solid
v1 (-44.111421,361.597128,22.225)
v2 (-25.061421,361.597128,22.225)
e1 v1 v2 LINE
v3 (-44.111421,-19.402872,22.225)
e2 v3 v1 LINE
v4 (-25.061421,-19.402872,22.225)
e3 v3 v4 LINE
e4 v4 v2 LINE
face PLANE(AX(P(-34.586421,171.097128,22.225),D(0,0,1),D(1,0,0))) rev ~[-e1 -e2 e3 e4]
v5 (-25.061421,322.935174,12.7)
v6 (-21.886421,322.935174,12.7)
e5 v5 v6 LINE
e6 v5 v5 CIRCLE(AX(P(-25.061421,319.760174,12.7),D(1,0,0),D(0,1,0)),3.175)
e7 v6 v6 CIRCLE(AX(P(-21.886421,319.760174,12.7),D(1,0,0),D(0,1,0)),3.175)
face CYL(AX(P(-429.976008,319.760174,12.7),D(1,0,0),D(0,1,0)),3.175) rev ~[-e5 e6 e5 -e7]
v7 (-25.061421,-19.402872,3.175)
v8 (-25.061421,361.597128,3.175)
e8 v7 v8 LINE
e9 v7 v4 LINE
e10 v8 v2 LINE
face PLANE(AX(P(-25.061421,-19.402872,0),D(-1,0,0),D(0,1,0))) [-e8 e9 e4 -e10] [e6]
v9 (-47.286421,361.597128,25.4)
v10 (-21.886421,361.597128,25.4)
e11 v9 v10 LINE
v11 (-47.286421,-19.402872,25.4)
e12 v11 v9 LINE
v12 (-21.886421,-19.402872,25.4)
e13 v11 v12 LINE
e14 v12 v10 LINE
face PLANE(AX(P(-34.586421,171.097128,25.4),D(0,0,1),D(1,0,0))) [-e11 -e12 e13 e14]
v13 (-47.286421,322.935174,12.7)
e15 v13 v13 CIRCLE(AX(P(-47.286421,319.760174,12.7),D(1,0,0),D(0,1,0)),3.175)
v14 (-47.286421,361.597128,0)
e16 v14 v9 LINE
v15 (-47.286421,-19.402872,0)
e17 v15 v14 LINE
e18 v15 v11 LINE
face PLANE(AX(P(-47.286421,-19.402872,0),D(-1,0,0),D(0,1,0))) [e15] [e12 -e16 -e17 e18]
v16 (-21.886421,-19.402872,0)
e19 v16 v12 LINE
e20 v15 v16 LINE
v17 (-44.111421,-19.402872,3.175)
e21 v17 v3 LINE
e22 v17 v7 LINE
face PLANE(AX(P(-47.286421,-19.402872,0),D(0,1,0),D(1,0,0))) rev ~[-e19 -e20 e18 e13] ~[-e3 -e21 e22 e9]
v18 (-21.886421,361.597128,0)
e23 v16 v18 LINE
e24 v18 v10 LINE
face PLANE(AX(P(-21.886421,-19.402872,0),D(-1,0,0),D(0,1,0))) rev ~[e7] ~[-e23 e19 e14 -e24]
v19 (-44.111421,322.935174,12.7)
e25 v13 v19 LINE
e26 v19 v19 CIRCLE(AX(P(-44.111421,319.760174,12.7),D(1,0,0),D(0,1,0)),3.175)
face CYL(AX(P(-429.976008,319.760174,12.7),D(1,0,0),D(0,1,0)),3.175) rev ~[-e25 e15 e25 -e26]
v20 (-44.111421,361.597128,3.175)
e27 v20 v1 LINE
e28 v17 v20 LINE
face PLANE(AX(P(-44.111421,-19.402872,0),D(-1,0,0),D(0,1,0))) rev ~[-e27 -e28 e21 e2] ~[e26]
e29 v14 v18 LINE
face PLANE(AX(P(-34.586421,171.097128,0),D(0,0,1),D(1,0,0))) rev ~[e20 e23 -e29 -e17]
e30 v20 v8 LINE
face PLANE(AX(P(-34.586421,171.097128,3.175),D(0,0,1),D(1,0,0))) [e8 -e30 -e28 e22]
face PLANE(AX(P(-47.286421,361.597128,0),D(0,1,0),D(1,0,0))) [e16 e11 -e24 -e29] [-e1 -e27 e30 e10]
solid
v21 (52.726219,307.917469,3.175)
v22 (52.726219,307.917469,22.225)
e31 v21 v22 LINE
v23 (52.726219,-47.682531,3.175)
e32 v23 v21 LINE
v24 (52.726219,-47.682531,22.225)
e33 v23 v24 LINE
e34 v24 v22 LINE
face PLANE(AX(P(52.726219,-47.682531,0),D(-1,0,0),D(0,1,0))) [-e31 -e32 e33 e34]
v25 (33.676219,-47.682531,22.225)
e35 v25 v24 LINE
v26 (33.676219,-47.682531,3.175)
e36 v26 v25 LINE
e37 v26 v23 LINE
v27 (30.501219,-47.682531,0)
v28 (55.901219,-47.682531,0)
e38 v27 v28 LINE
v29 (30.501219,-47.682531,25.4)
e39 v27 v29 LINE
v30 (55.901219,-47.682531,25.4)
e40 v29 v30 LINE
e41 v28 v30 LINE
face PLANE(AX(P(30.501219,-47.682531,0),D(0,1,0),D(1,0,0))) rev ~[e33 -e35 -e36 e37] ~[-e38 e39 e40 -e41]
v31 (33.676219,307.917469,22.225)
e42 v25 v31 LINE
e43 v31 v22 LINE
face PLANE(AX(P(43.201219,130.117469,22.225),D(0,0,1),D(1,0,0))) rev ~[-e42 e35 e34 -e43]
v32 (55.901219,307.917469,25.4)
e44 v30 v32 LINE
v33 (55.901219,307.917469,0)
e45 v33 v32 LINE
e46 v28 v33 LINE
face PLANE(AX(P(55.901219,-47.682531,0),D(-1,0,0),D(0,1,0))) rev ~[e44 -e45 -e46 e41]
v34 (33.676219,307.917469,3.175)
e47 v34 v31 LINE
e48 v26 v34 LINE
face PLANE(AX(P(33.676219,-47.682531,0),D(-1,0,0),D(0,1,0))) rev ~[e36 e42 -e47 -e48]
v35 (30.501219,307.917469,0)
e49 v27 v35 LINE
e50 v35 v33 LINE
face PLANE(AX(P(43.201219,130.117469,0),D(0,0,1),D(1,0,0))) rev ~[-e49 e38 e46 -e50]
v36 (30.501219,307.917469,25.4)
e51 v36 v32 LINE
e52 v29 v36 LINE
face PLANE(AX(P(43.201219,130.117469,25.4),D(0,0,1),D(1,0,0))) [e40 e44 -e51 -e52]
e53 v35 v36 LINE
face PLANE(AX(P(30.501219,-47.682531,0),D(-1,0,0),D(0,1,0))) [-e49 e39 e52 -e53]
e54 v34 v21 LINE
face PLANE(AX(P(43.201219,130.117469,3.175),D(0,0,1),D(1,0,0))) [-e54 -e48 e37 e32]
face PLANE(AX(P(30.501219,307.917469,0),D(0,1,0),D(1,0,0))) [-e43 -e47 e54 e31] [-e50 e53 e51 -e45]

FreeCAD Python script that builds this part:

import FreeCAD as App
import Part
import Sketcher
Q = App.Units.Quantity


def faces_at(feature, points):
    """Names of the faces that lie closest to the given points."""
    faces = feature.Shape.Faces
    near = lambda p: min(range(len(faces)), key=lambda i: faces[i].distToShape(Part.Vertex(*p))[0])
    return sorted({f"Face{near(p) + 1}" for p in points})

doc = App.newDocument("Part")
body = doc.addObject("PartDesign::Body", "Body")

sketch1 = body.newObject("Sketcher::SketchObject", "Sketch")
sketch1.AttachmentSupport = (doc.getObject("XY_Plane"), [""])
sketch1.MapMode = "FlatFace"
sketch1.addGeometry([
    Part.LineSegment(App.Vector(-47, 362, 0), App.Vector(-47, -19, 0)),
    Part.LineSegment(App.Vector(-47, -19, 0), App.Vector(-22, -19, 0)),
    Part.LineSegment(App.Vector(-22, -19, 0), App.Vector(-22, 362, 0)),
    Part.LineSegment(App.Vector(-22, 362, 0), App.Vector(-47, 362, 0)),
], False)
sketch1.addConstraint([
    Sketcher.Constraint("Coincident", 0, 2, 1, 1),
    Sketcher.Constraint("Coincident", 1, 2, 2, 1),
    Sketcher.Constraint("Coincident", 2, 2, 3, 1),
    Sketcher.Constraint("Coincident", 3, 2, 0, 1),
    Sketcher.Constraint("Vertical", 0),
    Sketcher.Constraint("Horizontal", 1),
    Sketcher.Constraint("Vertical", 2),
    Sketcher.Constraint("Horizontal", 3),
    Sketcher.Constraint("DistanceX", 1, 1, 1, 2, Q("1 in")),
    Sketcher.Constraint("DistanceY", 0, 2, 0, 1, Q("15 in")),
    Sketcher.Constraint("DistanceX", 0, 2, -1, 1, Q("47.286421 mm")),
    Sketcher.Constraint("DistanceY", 0, 2, -1, 1, Q("19.402872 mm")),
])
pad1 = body.newObject("PartDesign::Pad", "Pad")
pad1.Profile = sketch1
pad1.Length = Q("1 in")
doc.recompute()

thickness = body.newObject("PartDesign::Thickness", "Thickness")
thickness.Base = (pad1, faces_at(pad1, [(-34.586, -19.403, 12.7), (-34.586, 361.597, 12.7)]))
thickness.Value = Q("0.125 in")
thickness.Reversed = True
thickness.Join = "Arc"

sketch2 = body.newObject("Sketcher::SketchObject", "Sketch001")
sketch2.AttachmentSupport = (doc.getObject("YZ_Plane"), [""])
sketch2.MapMode = "FlatFace"
sketch2.AttachmentOffset = App.Placement(App.Vector(0, 0, -47.286421), App.Rotation())
sketch2.addGeometry(Part.Circle(App.Vector(319.8, 12.7, 0), App.Vector(0, 0, 1), 3.2), False)
sketch2.addConstraint([
    Sketcher.Constraint("Diameter", 0, Q("0.25 in")),
    Sketcher.Constraint("DistanceY", -1, 1, 0, 3, Q("0.5 in")),
    Sketcher.Constraint("DistanceX", -1, 1, 0, 3, Q("319.760174 mm")),
])
doc.recompute()
hole = body.newObject("PartDesign::Hole", "Hole")
hole.Profile = sketch2
hole.ThreadType = "None"
hole.Diameter = Q("0.25 in")
hole.DepthType = "ThroughAll"
hole.Reversed = True
body2 = doc.addObject("PartDesign::Body", "Body001")

sketch3 = body2.newObject("Sketcher::SketchObject", "Sketch002")
sketch3.AttachmentSupport = (doc.getObject("XY_Plane001"), [""])
sketch3.MapMode = "FlatFace"
sketch3.addGeometry([
    Part.LineSegment(App.Vector(31, 308, 0), App.Vector(31, -48, 0)),
    Part.LineSegment(App.Vector(31, -48, 0), App.Vector(56, -48, 0)),
    Part.LineSegment(App.Vector(56, -48, 0), App.Vector(56, 308, 0)),
    Part.LineSegment(App.Vector(56, 308, 0), App.Vector(31, 308, 0)),
], False)
sketch3.addConstraint([
    Sketcher.Constraint("Coincident", 0, 2, 1, 1),
    Sketcher.Constraint("Coincident", 1, 2, 2, 1),
    Sketcher.Constraint("Coincident", 2, 2, 3, 1),
    Sketcher.Constraint("Coincident", 3, 2, 0, 1),
    Sketcher.Constraint("Vertical", 0),
    Sketcher.Constraint("Horizontal", 1),
    Sketcher.Constraint("Vertical", 2),
    Sketcher.Constraint("Horizontal", 3),
    Sketcher.Constraint("DistanceX", 1, 1, 1, 2, Q("1 in")),
    Sketcher.Constraint("DistanceY", 0, 2, 0, 1, Q("14 in")),
    Sketcher.Constraint("DistanceX", -1, 1, 0, 2, Q("30.501219 mm")),
    Sketcher.Constraint("DistanceY", 0, 2, -1, 1, Q("47.682531 mm")),
])
pad2 = body2.newObject("PartDesign::Pad", "Pad001")
pad2.Profile = sketch3
pad2.Length = Q("1 in")
doc.recompute()

thickness2 = body2.newObject("PartDesign::Thickness", "Thickness001")
thickness2.Base = (pad2, faces_at(pad2, [(43.201, -47.683, 12.7), (43.201, 307.917, 12.7)]))
thickness2.Value = Q("0.125 in")
thickness2.Reversed = True
thickness2.Join = "Arc"

doc.recompute()
